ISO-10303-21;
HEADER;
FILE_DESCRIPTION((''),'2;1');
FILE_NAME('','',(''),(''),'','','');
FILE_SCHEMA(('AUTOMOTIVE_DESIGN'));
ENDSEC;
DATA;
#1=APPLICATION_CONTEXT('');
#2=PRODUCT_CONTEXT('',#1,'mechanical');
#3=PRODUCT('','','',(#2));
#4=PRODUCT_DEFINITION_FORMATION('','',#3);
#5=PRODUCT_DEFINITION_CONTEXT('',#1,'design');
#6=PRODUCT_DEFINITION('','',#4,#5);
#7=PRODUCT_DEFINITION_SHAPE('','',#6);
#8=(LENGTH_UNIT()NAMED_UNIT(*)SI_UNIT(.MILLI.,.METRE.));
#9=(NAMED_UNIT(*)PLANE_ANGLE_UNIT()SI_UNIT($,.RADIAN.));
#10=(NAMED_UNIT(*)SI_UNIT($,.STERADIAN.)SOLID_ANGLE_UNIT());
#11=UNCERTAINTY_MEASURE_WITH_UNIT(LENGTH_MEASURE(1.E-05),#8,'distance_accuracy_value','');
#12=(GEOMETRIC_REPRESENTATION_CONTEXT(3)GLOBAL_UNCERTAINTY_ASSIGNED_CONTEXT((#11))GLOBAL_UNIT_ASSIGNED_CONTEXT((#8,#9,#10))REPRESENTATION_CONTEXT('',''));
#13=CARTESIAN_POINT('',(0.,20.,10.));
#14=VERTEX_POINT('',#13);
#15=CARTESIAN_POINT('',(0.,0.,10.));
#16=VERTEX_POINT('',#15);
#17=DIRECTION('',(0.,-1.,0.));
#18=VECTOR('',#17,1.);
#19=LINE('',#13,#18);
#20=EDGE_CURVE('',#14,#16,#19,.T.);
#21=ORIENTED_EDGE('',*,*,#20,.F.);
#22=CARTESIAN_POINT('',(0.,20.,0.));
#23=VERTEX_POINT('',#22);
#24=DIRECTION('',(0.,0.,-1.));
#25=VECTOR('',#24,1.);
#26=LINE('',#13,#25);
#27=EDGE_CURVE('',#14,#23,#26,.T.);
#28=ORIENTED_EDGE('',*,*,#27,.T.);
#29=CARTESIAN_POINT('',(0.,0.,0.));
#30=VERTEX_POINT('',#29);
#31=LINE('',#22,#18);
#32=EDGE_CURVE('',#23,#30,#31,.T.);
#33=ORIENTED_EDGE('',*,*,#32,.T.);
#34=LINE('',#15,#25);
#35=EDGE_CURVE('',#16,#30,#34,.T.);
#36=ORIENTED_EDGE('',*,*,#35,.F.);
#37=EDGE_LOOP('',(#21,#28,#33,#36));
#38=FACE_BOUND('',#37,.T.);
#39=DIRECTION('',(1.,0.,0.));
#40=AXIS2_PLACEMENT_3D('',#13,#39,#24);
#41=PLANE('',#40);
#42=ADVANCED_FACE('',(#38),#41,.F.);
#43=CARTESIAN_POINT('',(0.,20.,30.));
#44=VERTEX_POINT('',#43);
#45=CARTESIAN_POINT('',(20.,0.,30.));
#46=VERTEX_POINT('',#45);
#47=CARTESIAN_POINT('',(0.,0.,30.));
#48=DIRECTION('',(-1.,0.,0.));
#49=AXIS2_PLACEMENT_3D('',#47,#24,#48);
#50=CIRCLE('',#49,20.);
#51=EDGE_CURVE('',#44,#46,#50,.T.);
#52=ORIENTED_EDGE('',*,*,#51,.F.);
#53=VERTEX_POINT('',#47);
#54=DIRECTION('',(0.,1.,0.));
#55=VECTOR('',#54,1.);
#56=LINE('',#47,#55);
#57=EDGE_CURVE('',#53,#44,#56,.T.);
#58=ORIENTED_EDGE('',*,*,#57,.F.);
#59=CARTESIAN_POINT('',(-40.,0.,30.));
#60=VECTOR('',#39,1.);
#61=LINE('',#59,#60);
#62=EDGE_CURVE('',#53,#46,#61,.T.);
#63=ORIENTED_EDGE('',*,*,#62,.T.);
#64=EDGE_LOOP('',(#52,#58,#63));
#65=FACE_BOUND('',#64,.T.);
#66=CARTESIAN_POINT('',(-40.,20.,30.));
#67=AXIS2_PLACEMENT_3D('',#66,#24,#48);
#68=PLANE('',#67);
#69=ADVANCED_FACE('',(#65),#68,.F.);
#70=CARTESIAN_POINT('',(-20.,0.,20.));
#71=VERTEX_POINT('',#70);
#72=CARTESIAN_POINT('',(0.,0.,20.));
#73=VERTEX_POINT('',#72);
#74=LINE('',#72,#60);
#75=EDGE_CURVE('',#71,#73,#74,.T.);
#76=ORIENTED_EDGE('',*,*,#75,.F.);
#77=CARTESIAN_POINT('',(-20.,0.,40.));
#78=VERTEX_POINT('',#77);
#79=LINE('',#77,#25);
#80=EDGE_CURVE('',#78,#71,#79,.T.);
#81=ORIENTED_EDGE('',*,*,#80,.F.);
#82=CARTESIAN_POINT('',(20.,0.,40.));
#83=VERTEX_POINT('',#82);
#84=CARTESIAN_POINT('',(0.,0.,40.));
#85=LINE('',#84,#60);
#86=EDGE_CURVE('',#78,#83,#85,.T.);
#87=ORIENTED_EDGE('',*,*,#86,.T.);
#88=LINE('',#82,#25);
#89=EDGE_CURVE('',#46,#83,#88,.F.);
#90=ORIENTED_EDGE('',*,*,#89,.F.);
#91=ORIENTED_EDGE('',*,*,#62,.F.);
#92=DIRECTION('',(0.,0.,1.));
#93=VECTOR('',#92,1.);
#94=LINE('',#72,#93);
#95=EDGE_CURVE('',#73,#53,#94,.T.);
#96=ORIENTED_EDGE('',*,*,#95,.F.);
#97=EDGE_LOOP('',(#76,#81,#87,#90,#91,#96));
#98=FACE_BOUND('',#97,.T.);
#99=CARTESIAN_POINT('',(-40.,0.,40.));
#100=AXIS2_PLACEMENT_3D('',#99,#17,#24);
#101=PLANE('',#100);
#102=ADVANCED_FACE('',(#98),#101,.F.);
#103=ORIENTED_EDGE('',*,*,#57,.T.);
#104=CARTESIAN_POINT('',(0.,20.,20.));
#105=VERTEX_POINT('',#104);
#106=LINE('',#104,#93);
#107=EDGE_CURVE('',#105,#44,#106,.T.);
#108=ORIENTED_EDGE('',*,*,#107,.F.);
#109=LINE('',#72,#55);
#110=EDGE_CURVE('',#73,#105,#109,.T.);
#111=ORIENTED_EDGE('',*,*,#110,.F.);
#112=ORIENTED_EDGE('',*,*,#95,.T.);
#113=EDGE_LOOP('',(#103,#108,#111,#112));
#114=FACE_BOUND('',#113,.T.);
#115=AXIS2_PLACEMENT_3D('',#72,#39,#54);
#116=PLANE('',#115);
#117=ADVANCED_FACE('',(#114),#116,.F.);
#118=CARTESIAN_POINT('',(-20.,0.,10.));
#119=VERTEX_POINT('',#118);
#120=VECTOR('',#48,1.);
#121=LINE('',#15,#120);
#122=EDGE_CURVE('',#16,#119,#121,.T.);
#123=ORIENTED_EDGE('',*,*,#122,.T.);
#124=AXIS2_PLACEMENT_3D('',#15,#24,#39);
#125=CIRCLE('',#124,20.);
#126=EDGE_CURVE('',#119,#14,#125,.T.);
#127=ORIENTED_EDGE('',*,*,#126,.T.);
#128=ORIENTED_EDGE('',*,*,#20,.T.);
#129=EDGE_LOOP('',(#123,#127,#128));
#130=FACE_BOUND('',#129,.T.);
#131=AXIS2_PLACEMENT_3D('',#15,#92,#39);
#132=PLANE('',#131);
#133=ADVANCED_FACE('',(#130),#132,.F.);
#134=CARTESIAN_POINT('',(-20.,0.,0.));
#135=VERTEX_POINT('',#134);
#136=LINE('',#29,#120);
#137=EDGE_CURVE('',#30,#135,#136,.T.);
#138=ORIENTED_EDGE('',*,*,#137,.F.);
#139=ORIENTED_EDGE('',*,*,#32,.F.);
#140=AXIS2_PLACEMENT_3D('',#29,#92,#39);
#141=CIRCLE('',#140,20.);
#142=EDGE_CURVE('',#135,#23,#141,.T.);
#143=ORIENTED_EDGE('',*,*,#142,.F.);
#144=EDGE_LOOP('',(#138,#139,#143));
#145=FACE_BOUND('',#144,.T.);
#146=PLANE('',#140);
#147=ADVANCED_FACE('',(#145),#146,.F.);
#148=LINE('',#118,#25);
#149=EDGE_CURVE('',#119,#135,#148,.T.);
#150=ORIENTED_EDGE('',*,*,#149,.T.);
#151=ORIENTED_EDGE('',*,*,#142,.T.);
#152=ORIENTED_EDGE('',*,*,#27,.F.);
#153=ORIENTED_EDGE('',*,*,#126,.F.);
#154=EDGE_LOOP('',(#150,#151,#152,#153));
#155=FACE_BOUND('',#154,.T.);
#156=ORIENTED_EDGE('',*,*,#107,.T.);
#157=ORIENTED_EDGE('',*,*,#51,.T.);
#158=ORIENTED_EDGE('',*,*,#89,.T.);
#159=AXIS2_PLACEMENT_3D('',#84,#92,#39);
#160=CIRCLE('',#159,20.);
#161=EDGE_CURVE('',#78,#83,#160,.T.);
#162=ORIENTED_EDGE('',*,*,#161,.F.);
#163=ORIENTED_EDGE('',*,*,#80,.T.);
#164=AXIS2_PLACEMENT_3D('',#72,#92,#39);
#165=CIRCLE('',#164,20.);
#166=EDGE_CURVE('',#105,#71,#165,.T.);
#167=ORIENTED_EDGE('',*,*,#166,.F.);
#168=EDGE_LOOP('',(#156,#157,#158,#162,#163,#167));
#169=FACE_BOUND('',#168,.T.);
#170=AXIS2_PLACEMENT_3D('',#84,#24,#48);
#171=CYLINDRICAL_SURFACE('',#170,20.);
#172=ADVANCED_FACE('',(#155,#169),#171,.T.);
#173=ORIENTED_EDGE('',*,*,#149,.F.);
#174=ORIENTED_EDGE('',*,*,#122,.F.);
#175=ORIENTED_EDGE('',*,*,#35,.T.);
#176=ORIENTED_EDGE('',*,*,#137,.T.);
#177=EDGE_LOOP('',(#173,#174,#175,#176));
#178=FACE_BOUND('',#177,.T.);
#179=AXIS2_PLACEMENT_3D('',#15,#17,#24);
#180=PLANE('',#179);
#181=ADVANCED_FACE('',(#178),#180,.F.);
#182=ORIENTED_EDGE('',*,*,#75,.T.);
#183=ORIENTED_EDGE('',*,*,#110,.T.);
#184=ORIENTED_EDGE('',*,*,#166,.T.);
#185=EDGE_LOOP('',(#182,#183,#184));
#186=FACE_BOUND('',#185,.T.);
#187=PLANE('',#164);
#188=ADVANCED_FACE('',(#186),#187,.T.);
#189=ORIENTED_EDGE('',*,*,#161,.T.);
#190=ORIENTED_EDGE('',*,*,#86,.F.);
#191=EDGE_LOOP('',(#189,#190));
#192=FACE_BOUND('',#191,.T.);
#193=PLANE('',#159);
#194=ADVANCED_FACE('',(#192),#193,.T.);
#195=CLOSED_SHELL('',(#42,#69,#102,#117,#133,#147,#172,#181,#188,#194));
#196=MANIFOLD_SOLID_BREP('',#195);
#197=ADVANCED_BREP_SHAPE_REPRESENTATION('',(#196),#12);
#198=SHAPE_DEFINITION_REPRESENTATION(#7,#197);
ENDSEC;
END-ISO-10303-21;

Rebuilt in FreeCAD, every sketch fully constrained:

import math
import FreeCAD as App
import Part
import Sketcher

V = App.Vector
Q = App.Units.Quantity


def add_polygon(sketch, points):
    """Adds a closed chain of lines whose ends are joined by coincident constraints."""
    first, n = sketch.GeometryCount, len(points)
    for a, b in zip(points, points[1:] + points[:1]):
        sketch.addGeometry(Part.LineSegment(App.Vector(*a, 0), App.Vector(*b, 0)), False)
    for i in range(n):
        sketch.addConstraint(Sketcher.Constraint("Coincident", first + i, 2, first + (i + 1) % n, 1))

doc = App.newDocument("Part")
body = doc.addObject("PartDesign::Body", "Body")

sketch1 = doc.addObject("Sketcher::SketchObject", "Sketch")
body.addObject(sketch1)
sketch1.AttachmentSupport = (doc.XY_Plane, [""])
sketch1.MapMode = "FlatFace"
sketch1.addGeometry(Part.Circle(V(0, 0, 0), V(0, 0, 1), 20), False)
sketch1.addConstraint(Sketcher.Constraint("Coincident", 0, 3, -1, 1))
sketch1.addConstraint(Sketcher.Constraint("Diameter", 0, Q("40 mm")))
pad1 = doc.addObject("PartDesign::Pad", "Pad")
body.addObject(pad1)
pad1.Profile = sketch1
pad1.Length = 40

sketch2 = doc.addObject("Sketcher::SketchObject", "Sketch001")
body.addObject(sketch2)
sketch2.AttachmentSupport = (doc.YZ_Plane, [""])
sketch2.MapMode = "FlatFace"
add_polygon(sketch2, [(20, 40), (0, 40), (0, 30), (20, 30)])
sketch2.addConstraint(Sketcher.Constraint("Horizontal", 0))
sketch2.addConstraint(Sketcher.Constraint("Vertical", 1))
sketch2.addConstraint(Sketcher.Constraint("Horizontal", 2))
sketch2.addConstraint(Sketcher.Constraint("Vertical", 3))
sketch2.addConstraint(Sketcher.Constraint("PointOnObject", 0, 2, -2))
sketch2.addConstraint(Sketcher.Constraint("DistanceX", 0, 2, 0, 1, Q("20 mm")))
sketch2.addConstraint(Sketcher.Constraint("DistanceY", 1, 2, 1, 1, Q("10 mm")))
sketch2.addConstraint(Sketcher.Constraint("DistanceY", -1, 1, 0, 2, Q("40 mm")))
pocket1 = doc.addObject("PartDesign::Pocket", "Pocket")
body.addObject(pocket1)
pocket1.Profile = sketch2
pocket1.Type = "ThroughAll"
pocket1.Midplane = True

sketch3 = doc.addObject("Sketcher::SketchObject", "Sketch002")
body.addObject(sketch3)
sketch3.AttachmentSupport = (doc.XY_Plane, [""])
sketch3.MapMode = "FlatFace"
sketch3.AttachmentOffset = App.Placement(V(0, 0, 30), App.Rotation())
sketch3.addGeometry(Part.LineSegment(V(0, 0, 0), V(0, 20, 0)), False)
sketch3.addGeometry(Part.ArcOfCircle(Part.Circle(V(0, 0, 0), V(0, 0, 1), 20), math.radians(90), math.radians(180)), False)
sketch3.addGeometry(Part.LineSegment(V(-20, 0, 0), V(0, 0, 0)), False)
sketch3.addConstraint(Sketcher.Constraint("Coincident", 0, 2, 1, 1))
sketch3.addConstraint(Sketcher.Constraint("Coincident", 1, 2, 2, 1))
sketch3.addConstraint(Sketcher.Constraint("Coincident", 2, 2, 0, 1))
sketch3.addConstraint(Sketcher.Constraint("Vertical", 0))
sketch3.addConstraint(Sketcher.Constraint("Horizontal", 2))
sketch3.addConstraint(Sketcher.Constraint("Coincident", 1, 3, -1, 1))
sketch3.addConstraint(Sketcher.Constraint("Coincident", 2, 2, -1, 1))
sketch3.addConstraint(Sketcher.Constraint("Radius", 1, Q("20 mm")))
pocket2 = doc.addObject("PartDesign::Pocket", "Pocket001")
body.addObject(pocket2)
pocket2.Profile = sketch3
pocket2.Length = 10

sketch4 = doc.addObject("Sketcher::SketchObject", "Sketch003")
body.addObject(sketch4)
sketch4.AttachmentSupport = (doc.XY_Plane, [""])
sketch4.MapMode = "FlatFace"
sketch4.addGeometry(Part.LineSegment(V(0, 20, 0), V(0, 0, 0)), False)
sketch4.addGeometry(Part.LineSegment(V(0, 0, 0), V(-20, 0, 0)), False)
sketch4.addGeometry(Part.ArcOfCircle(Part.Circle(V(0, 0, 0), V(0, 0, 1), 20), math.radians(90), math.radians(180)), False)
sketch4.addConstraint(Sketcher.Constraint("Coincident", 0, 2, 1, 1))
sketch4.addConstraint(Sketcher.Constraint("Coincident", 1, 2, 2, 2))
sketch4.addConstraint(Sketcher.Constraint("Coincident", 2, 1, 0, 1))
sketch4.addConstraint(Sketcher.Constraint("Vertical", 0))
sketch4.addConstraint(Sketcher.Constraint("Horizontal", 1))
sketch4.addConstraint(Sketcher.Constraint("Coincident", 2, 3, -1, 1))
sketch4.addConstraint(Sketcher.Constraint("Coincident", 0, 2, -1, 1))
sketch4.addConstraint(Sketcher.Constraint("Radius", 2, Q("20 mm")))
pocket3 = doc.addObject("PartDesign::Pocket", "Pocket002")
body.addObject(pocket3)
pocket3.Profile = sketch4
pocket3.Length = 10
pocket3.Reversed = True

doc.recompute()
